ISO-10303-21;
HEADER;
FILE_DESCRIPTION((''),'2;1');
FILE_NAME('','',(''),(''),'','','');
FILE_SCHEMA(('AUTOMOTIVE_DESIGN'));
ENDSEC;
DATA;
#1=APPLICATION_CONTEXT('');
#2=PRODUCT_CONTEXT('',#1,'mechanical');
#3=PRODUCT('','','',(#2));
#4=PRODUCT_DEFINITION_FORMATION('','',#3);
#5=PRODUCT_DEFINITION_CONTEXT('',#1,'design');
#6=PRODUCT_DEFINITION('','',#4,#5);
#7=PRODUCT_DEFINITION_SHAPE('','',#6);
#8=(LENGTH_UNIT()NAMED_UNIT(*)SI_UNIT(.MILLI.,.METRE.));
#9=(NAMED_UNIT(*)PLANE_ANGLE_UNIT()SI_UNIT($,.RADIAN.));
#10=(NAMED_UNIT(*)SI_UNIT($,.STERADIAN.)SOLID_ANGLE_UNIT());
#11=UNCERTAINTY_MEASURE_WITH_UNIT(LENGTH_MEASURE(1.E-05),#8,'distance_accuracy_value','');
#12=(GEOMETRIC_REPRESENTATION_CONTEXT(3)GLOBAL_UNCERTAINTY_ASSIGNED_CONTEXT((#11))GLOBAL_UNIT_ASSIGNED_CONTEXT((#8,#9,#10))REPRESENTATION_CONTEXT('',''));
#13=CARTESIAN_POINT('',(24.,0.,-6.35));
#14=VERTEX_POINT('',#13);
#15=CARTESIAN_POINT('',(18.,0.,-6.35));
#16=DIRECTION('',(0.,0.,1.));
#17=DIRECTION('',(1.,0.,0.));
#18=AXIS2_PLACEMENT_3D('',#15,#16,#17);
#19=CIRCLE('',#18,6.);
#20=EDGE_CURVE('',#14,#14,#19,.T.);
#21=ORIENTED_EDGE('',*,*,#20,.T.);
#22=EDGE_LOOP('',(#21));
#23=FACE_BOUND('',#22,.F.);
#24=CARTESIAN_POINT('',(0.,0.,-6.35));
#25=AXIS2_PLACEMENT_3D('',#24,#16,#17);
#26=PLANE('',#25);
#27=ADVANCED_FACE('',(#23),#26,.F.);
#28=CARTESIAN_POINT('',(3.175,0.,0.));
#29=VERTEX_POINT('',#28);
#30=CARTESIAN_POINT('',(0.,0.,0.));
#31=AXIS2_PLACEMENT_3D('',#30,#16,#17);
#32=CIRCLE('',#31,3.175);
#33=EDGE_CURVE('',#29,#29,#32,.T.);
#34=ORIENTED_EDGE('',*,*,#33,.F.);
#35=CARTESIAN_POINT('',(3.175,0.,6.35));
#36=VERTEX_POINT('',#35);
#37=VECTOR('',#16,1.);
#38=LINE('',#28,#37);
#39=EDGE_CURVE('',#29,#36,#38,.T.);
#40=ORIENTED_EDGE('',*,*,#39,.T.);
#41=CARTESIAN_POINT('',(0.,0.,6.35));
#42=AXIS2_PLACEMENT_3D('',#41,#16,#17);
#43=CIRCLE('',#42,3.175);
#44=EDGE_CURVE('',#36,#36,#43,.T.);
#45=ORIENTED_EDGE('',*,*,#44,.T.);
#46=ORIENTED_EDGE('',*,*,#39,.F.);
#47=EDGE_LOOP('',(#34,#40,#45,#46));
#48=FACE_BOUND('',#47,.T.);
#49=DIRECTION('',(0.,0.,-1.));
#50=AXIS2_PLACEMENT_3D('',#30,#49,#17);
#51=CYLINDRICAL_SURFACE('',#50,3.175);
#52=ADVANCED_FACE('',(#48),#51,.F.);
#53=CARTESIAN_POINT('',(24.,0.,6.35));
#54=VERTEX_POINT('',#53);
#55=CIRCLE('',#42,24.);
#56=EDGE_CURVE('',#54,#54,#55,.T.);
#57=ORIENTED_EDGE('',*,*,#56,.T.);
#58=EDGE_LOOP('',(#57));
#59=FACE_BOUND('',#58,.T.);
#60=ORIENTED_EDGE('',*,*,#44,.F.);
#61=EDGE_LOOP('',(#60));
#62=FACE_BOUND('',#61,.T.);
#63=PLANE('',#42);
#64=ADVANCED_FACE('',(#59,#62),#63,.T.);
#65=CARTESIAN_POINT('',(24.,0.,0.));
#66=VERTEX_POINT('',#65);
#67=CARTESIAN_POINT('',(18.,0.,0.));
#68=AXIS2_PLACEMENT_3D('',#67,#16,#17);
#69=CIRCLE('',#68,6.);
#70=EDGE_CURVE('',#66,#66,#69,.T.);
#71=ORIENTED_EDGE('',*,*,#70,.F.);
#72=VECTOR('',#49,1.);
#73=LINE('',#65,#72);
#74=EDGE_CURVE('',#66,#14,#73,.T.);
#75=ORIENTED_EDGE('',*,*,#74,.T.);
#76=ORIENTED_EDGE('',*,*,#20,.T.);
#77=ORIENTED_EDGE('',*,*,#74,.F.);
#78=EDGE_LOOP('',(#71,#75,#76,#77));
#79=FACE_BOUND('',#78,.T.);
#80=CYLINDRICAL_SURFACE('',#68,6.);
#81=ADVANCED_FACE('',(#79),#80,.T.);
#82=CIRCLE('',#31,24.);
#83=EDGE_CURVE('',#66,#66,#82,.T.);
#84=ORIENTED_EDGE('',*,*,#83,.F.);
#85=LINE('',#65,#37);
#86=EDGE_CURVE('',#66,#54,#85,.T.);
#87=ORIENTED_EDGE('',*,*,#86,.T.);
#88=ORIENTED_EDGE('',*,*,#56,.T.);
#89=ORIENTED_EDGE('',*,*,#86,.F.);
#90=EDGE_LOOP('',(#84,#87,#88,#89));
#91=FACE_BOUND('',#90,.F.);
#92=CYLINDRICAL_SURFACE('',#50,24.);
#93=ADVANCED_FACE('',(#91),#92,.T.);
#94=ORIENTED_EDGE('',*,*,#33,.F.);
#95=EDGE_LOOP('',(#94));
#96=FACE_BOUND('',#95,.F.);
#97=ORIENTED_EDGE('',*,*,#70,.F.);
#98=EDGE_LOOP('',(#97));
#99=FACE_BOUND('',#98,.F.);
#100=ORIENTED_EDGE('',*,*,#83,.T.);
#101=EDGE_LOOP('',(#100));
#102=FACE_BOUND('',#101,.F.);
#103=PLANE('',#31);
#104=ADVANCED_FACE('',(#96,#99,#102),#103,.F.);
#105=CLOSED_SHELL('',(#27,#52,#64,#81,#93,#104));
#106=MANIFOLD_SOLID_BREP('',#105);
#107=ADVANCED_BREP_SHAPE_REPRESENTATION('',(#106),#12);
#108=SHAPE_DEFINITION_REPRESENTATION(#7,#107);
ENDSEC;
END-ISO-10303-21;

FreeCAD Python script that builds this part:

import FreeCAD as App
import Part
import Sketcher
from FreeCAD import Vector

doc = App.newDocument("Part")
params = doc.addObject("Spreadsheet::Sheet", "Params")
for row, (alias, value) in enumerate([
    ("sketch1_diameter", "48 mm"),
    ("sketch1_diameter2", "6.35 mm"),
    ("pad1_length", "6.35 mm"),
    ("sketch2_diameter", "12 mm"),
    ("pad2_length", "6.35 mm"),
], start=1):
    params.set(f"A{row}", alias)
    params.set(f"B{row}", "=" + value)
    params.setAlias(f"B{row}", alias)

body = doc.addObject("PartDesign::Body", "Body")

# Sketch on XY plane
sketch1 = body.newObject("Sketcher::SketchObject", "Sketch")
sketch1.AttachmentSupport = (doc.getObject("XY_Plane"), [""])
sketch1.MapMode = "FlatFace"
sketch1.addGeometry([
    Part.Circle(Vector(0, 0, 0), Vector(0, 0, 1), 24),
    Part.Circle(Vector(0, 0, 0), Vector(0, 0, 1), 3.2),
], False)
sketch1.addConstraint([
    Sketcher.Constraint("Coincident", 0, 3, -1, 1),
    Sketcher.Constraint("Coincident", 1, 3, -1, 1),
    Sketcher.Constraint("Diameter", 0, 48.0),
    Sketcher.Constraint("Diameter", 1, 6.35),
])
sketch1.setExpression("Constraints[2]", "Params.sketch1_diameter")
sketch1.setExpression("Constraints[3]", "Params.sketch1_diameter2")
pad1 = body.newObject("PartDesign::Pad", "Pad")
pad1.Profile = sketch1
pad1.setExpression("Length", "Params.pad1_length")

# Sketch on XY plane
sketch2 = body.newObject("Sketcher::SketchObject", "Sketch001")
sketch2.AttachmentSupport = (doc.getObject("XY_Plane"), [""])
sketch2.MapMode = "FlatFace"
sketch2.addGeometry(Part.Circle(Vector(18, 0, 0), Vector(0, 0, 1), 6), False)
sketch2.addConstraint([
    Sketcher.Constraint("PointOnObject", 0, 3, -1),
    Sketcher.Constraint("Diameter", 0, 12.0),
    Sketcher.Constraint("DistanceX", -1, 1, 0, 3, 18.0),
])
sketch2.setExpression("Constraints[1]", "Params.sketch2_diameter")
pad2 = body.newObject("PartDesign::Pad", "Pad001")
pad2.Profile = sketch2
pad2.setExpression("Length", "Params.pad2_length")
pad2.Reversed = True

doc.recompute()
